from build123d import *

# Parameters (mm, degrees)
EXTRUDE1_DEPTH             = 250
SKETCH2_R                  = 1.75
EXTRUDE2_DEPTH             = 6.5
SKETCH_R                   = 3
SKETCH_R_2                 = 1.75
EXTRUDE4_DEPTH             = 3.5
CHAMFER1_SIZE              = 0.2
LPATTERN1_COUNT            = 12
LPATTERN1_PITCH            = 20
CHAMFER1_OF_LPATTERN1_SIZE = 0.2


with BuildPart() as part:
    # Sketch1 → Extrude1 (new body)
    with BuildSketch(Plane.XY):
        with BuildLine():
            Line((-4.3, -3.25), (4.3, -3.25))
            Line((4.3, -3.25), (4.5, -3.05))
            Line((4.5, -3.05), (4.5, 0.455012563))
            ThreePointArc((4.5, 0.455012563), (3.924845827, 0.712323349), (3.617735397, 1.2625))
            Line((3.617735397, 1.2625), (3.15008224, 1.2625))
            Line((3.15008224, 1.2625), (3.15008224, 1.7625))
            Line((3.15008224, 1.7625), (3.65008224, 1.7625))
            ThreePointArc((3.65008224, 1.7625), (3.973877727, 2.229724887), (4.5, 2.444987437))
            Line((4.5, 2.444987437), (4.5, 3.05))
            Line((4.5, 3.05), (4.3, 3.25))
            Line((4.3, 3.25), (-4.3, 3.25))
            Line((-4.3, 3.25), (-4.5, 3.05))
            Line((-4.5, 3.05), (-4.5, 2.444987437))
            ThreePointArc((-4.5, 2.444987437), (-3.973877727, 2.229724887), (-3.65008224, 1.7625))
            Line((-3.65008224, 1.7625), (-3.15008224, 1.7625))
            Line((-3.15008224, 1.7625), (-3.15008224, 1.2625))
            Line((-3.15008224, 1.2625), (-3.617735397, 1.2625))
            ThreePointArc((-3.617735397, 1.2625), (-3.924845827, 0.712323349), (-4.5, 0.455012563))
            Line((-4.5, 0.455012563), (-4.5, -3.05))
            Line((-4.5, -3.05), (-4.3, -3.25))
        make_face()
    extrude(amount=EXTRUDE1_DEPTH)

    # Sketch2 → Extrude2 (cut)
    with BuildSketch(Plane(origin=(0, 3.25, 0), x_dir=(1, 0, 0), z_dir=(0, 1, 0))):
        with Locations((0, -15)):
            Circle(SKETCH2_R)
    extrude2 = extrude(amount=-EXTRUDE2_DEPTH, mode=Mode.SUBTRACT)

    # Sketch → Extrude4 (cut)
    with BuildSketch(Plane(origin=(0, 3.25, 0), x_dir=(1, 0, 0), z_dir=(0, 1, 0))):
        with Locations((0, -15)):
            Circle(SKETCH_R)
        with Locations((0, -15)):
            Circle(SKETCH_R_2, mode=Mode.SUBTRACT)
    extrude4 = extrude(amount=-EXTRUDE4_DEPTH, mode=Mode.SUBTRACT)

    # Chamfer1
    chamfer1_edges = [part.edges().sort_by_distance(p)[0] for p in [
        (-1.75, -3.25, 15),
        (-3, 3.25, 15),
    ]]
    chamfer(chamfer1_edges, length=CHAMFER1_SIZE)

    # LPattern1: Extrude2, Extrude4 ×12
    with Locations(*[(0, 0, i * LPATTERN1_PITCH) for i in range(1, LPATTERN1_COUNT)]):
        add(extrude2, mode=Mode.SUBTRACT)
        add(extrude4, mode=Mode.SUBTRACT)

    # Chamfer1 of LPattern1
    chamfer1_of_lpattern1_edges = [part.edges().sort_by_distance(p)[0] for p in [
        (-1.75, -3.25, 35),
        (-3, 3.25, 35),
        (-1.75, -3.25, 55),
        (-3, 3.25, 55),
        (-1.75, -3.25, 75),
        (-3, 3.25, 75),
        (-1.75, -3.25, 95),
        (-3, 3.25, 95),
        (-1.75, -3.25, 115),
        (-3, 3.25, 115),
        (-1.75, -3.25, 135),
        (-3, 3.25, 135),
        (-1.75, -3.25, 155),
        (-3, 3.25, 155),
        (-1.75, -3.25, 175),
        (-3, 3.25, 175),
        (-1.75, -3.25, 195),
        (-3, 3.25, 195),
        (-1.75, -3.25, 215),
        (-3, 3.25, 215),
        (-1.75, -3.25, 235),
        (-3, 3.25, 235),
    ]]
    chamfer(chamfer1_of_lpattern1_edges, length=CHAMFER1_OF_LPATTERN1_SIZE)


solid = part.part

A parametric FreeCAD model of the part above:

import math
import FreeCAD as App
import Part
import Sketcher

V = App.Vector
Q = App.Units.Quantity


def edges_at(feature, points):
    """Names of the edges that pass closest to the given points."""
    edges = feature.Shape.Edges
    near = lambda p: min(range(len(edges)), key=lambda i: edges[i].distToShape(Part.Vertex(*p))[0])
    return sorted({f"Edge{near(p) + 1}" for p in points})

doc = App.newDocument("Part")
body = doc.addObject("PartDesign::Body", "Body")

# Sketch on XY plane
sketch1 = doc.addObject("Sketcher::SketchObject", "Sketch")
body.addObject(sketch1)
sketch1.AttachmentSupport = (doc.XY_Plane, [""])
sketch1.MapMode = "FlatFace"
sketch1.addGeometry([
    Part.LineSegment(V(-4.3, -3.25, 0), V(4.3, -3.25, 0)),  # 0
    Part.LineSegment(V(4.3, -3.25, 0), V(4.5, -3.05, 0)),  # 1
    Part.LineSegment(V(4.5, -3.05, 0), V(4.5, 0.455013, 0)),  # 2
    Part.ArcOfCircle(Part.Circle(V(4.6, 1.45, 0), V(0, 0, 1), 1), math.radians(-169.193077), math.radians(-95.739171)),  # 3
    Part.LineSegment(V(3.617735, 1.2625, 0), V(3.150082, 1.2625, 0)),  # 4
    Part.LineSegment(V(3.150082, 1.2625, 0), V(3.150082, 1.7625, 0)),  # 5
    Part.LineSegment(V(3.150082, 1.7625, 0), V(3.650082, 1.7625, 0)),  # 6
    Part.ArcOfCircle(Part.Circle(V(4.6, 1.45, 0), V(0, 0, 1), 1), math.radians(95.73917), math.radians(161.790043)),  # 7
    Part.LineSegment(V(4.5, 2.444987, 0), V(4.5, 3.05, 0)),  # 8
    Part.LineSegment(V(4.5, 3.05, 0), V(4.3, 3.25, 0)),  # 9
    Part.LineSegment(V(4.3, 3.25, 0), V(-4.3, 3.25, 0)),  # 10
    Part.LineSegment(V(-4.3, 3.25, 0), V(-4.5, 3.05, 0)),  # 11
    Part.LineSegment(V(-4.5, 3.05, 0), V(-4.5, 2.444987, 0)),  # 12
    Part.ArcOfCircle(Part.Circle(V(-4.6, 1.45, 0), V(0, 0, 1), 1), math.radians(18.209957), math.radians(84.26083)),  # 13
    Part.LineSegment(V(-3.650082, 1.7625, 0), V(-3.150082, 1.7625, 0)),  # 14
    Part.LineSegment(V(-3.150082, 1.7625, 0), V(-3.150082, 1.2625, 0)),  # 15
    Part.LineSegment(V(-3.150082, 1.2625, 0), V(-3.617735, 1.2625, 0)),  # 16
    Part.ArcOfCircle(Part.Circle(V(-4.6, 1.45, 0), V(0, 0, 1), 1), math.radians(-84.260829), math.radians(-10.806923)),  # 17
    Part.LineSegment(V(-4.5, 0.455013, 0), V(-4.5, -3.05, 0)),  # 18
    Part.LineSegment(V(-4.5, -3.05, 0), V(-4.3, -3.25, 0)),  # 19
], False)
sketch1.addConstraint([
    Sketcher.Constraint("Coincident", 0, 2, 1, 1),
    Sketcher.Constraint("Coincident", 1, 2, 2, 1),
    Sketcher.Constraint("Coincident", 2, 2, 3, 2),
    Sketcher.Constraint("Coincident", 3, 1, 4, 1),
    Sketcher.Constraint("Coincident", 4, 2, 5, 1),
    Sketcher.Constraint("Coincident", 5, 2, 6, 1),
    Sketcher.Constraint("Coincident", 6, 2, 7, 2),
    Sketcher.Constraint("Coincident", 7, 1, 8, 1),
    Sketcher.Constraint("Coincident", 8, 2, 9, 1),
    Sketcher.Constraint("Coincident", 9, 2, 10, 1),
    Sketcher.Constraint("Coincident", 10, 2, 11, 1),
    Sketcher.Constraint("Coincident", 11, 2, 12, 1),
    Sketcher.Constraint("Coincident", 12, 2, 13, 2),
    Sketcher.Constraint("Coincident", 13, 1, 14, 1),
    Sketcher.Constraint("Coincident", 14, 2, 15, 1),
    Sketcher.Constraint("Coincident", 15, 2, 16, 1),
    Sketcher.Constraint("Coincident", 16, 2, 17, 2),
    Sketcher.Constraint("Coincident", 17, 1, 18, 1),
    Sketcher.Constraint("Coincident", 18, 2, 19, 1),
    Sketcher.Constraint("Coincident", 19, 2, 0, 1),
    Sketcher.Constraint("Horizontal", 0),
    Sketcher.Constraint("Vertical", 2),
    Sketcher.Constraint("Horizontal", 4),
    Sketcher.Constraint("Vertical", 5),
    Sketcher.Constraint("Horizontal", 6),
    Sketcher.Constraint("Vertical", 8),
    Sketcher.Constraint("Horizontal", 10),
    Sketcher.Constraint("Vertical", 12),
    Sketcher.Constraint("Horizontal", 14),
    Sketcher.Constraint("Vertical", 15),
    Sketcher.Constraint("Horizontal", 16),
    Sketcher.Constraint("Vertical", 18),
    Sketcher.Constraint("Coincident", 7, 3, 3, 3),
    Sketcher.Constraint("Coincident", 17, 3, 13, 3),
    Sketcher.Constraint("Equal", 3, 7),
    Sketcher.Constraint("Equal", 7, 13),
    Sketcher.Constraint("Equal", 13, 17),
    Sketcher.Constraint("Symmetric", 0, 2, 10, 2, -1, 1),
    Sketcher.Constraint("Symmetric", 1, 2, 11, 2, -1, 1),
    Sketcher.Constraint("Symmetric", 8, 2, 18, 2, -1, 1),
    Sketcher.Constraint("Symmetric", 3, 3, 13, 3, -2),
    Sketcher.Constraint("Symmetric", 8, 2, 11, 2, -2),
    Sketcher.Constraint("Symmetric", 5, 2, 14, 2, -2),
    Sketcher.Constraint("Perpendicular", 1, 9),
    Sketcher.Constraint("Perpendicular", 11, 19),
    Sketcher.Constraint("Horizontal", 4, 2, 15, 2),
    Sketcher.Constraint("Vertical", 0, 2, 9, 2),
    Sketcher.Constraint("Equal", 14, 5),
    Sketcher.Constraint("Radius", 3, Q("1 mm")),
    Sketcher.Constraint("DistanceX", 0, 1, 0, 2, Q("8.6 mm")),
    Sketcher.Constraint("DistanceX", 6, 1, 6, 2, Q("0.5 mm")),
    Sketcher.Constraint("DistanceX", -1, 1, 3, 3, Q("4.6 mm")),
    Sketcher.Constraint("DistanceX", -1, 1, 1, 2, Q("4.5 mm")),
    Sketcher.Constraint("DistanceY", 0, 2, 7, 3, Q("4.7 mm")),
    Sketcher.Constraint("DistanceY", 3, 3, 8, 2, Q("1.6 mm")),
    Sketcher.Constraint("DistanceY", -1, 1, 3, 1, Q("1.2625 mm")),
])
pad1 = doc.addObject("PartDesign::Pad", "Pad")
body.addObject(pad1)
pad1.Profile = sketch1
pad1.Length = 250

# Sketch on XZ plane
sketch2 = doc.addObject("Sketcher::SketchObject", "Sketch001")
body.addObject(sketch2)
sketch2.AttachmentSupport = (doc.XZ_Plane, [""])
sketch2.MapMode = "FlatFace"
sketch2.AttachmentOffset = App.Placement(V(0, 0, -3.25), App.Rotation())
sketch2.addGeometry(Part.Circle(V(0, 15, 0), V(0, 0, 1), 1.75), False)
sketch2.addConstraint([
    Sketcher.Constraint("PointOnObject", 0, 3, -2),
    Sketcher.Constraint("Diameter", 0, Q("3.5 mm")),
    Sketcher.Constraint("DistanceY", -1, 1, 0, 3, Q("15 mm")),
])
pocket1 = doc.addObject("PartDesign::Pocket", "Pocket")
body.addObject(pocket1)
pocket1.Profile = sketch2
pocket1.Length = 6.5
pocket1.Reversed = True

# Sketch on XZ plane
sketch3 = doc.addObject("Sketcher::SketchObject", "Sketch002")
body.addObject(sketch3)
sketch3.AttachmentSupport = (doc.XZ_Plane, [""])
sketch3.MapMode = "FlatFace"
sketch3.AttachmentOffset = App.Placement(V(0, 0, -3.25), App.Rotation())
sketch3.addGeometry([
    Part.Circle(V(0, 15, 0), V(0, 0, 1), 3),
    Part.Circle(V(0, 15, 0), V(0, 0, 1), 1.75),
], False)
sketch3.addConstraint([
    Sketcher.Constraint("Coincident", 1, 3, 0, 3),
    Sketcher.Constraint("PointOnObject", 0, 3, -2),
    Sketcher.Constraint("Diameter", 0, Q("6 mm")),
    Sketcher.Constraint("Diameter", 1, Q("3.5 mm")),
    Sketcher.Constraint("DistanceY", -1, 1, 0, 3, Q("15 mm")),
])
pocket2 = doc.addObject("PartDesign::Pocket", "Pocket001")
body.addObject(pocket2)
pocket2.Profile = sketch3
pocket2.Length = 3.5
pocket2.Reversed = True
doc.recompute()

chamfer = doc.addObject("PartDesign::Chamfer", "Chamfer")
body.addObject(chamfer)
chamfer.Base = (pocket2, edges_at(pocket2, [(-1.75, -3.25, 15), (-3, 3.25, 15)]))
chamfer.Size = 0.2
doc.recompute()

linearpattern = doc.addObject("PartDesign::LinearPattern", "LinearPattern")
body.addObject(linearpattern)
linearpattern.Originals = [pocket1, pocket2]
linearpattern.Direction = (doc.Z_Axis, [""])
linearpattern.Mode = "offset"
linearpattern.Offset = 20
linearpattern.Occurrences = 12
body.Tip = linearpattern
doc.recompute()

chamfer2 = doc.addObject("PartDesign::Chamfer", "Chamfer001")
body.addObject(chamfer2)
chamfer2.Base = (linearpattern, edges_at(linearpattern, [
    (-1.75, -3.25, 35),
    (-3, 3.25, 35),
    (-1.75, -3.25, 55),
    (-3, 3.25, 55),
    (-1.75, -3.25, 75),
    (-3, 3.25, 75),
    (-1.75, -3.25, 95),
    (-3, 3.25, 95),
    (-1.75, -3.25, 115),
    (-3, 3.25, 115),
    (-1.75, -3.25, 135),
    (-3, 3.25, 135),
    (-1.75, -3.25, 155),
    (-3, 3.25, 155),
    (-1.75, -3.25, 175),
    (-3, 3.25, 175),
    (-1.75, -3.25, 195),
    (-3, 3.25, 195),
    (-1.75, -3.25, 215),
    (-3, 3.25, 215),
    (-1.75, -3.25, 235),
    (-3, 3.25, 235),
]))
chamfer2.Size = 0.2

doc.recompute()
